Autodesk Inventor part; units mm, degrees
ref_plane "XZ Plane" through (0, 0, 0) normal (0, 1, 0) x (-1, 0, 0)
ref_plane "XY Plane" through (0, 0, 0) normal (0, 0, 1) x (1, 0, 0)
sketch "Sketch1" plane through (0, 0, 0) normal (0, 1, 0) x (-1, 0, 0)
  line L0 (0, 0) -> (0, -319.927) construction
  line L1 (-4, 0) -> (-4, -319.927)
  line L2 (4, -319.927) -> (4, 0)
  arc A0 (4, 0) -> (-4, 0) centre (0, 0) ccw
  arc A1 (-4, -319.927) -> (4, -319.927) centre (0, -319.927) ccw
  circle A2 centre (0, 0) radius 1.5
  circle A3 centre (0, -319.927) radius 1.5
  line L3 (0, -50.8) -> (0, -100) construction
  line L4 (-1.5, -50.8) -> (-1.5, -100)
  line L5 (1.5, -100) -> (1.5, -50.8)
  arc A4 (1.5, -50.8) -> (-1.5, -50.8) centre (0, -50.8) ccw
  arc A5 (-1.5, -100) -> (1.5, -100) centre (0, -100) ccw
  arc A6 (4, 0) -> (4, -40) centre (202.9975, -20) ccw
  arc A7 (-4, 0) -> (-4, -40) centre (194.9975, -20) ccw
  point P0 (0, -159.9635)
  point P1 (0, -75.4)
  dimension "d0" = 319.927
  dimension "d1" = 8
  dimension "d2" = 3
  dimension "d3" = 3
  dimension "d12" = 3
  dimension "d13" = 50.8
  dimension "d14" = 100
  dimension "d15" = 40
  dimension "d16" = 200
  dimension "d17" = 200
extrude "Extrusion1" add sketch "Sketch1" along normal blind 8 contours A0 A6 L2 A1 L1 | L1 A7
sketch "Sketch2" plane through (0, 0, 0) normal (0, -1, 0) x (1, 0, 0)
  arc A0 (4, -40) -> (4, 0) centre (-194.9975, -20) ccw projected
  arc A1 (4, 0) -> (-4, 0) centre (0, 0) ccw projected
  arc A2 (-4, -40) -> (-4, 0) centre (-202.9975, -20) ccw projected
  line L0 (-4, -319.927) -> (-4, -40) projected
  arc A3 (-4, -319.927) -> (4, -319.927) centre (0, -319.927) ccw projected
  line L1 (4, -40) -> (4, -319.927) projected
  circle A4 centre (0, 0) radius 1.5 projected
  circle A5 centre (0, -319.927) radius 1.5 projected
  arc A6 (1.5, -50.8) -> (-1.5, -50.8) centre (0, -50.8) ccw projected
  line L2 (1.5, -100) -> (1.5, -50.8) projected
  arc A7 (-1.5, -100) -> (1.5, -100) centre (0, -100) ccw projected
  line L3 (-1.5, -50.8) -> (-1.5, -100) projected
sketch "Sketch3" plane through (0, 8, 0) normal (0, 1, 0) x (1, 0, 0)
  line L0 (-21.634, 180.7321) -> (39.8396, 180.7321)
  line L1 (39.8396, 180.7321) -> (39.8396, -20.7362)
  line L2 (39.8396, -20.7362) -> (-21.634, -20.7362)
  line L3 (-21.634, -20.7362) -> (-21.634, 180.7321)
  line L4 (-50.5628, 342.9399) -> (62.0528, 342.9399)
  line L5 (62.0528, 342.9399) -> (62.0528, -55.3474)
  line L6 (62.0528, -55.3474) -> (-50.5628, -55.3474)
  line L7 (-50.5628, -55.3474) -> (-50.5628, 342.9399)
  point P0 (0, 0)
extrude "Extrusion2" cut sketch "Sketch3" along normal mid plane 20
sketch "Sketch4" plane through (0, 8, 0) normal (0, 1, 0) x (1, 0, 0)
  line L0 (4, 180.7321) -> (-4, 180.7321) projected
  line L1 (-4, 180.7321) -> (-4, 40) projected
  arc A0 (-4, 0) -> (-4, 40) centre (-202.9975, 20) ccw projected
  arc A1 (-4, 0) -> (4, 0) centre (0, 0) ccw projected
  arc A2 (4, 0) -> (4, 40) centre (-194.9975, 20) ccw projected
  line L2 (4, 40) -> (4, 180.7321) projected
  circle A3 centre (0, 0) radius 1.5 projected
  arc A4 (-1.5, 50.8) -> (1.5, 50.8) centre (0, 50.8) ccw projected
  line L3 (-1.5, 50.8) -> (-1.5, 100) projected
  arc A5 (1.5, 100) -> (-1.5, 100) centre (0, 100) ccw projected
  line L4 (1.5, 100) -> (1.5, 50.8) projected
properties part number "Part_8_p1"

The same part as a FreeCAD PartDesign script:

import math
import FreeCAD as App
import Part
import Sketcher
from FreeCAD import Vector
Q = App.Units.Quantity


def add_polygon(sketch, points):
    """Adds a closed chain of lines whose ends are joined by coincident constraints."""
    first, n = sketch.GeometryCount, len(points)
    for a, b in zip(points, points[1:] + points[:1]):
        sketch.addGeometry(Part.LineSegment(App.Vector(*a, 0), App.Vector(*b, 0)), False)
    for i in range(n):
        sketch.addConstraint(Sketcher.Constraint("Coincident", first + i, 2, first + (i + 1) % n, 1))

doc = App.newDocument("Part")
body = doc.addObject("PartDesign::Body", "Body")

sketch1 = body.newObject("Sketcher::SketchObject", "Sketch")
sketch1.AttachmentSupport = (doc.getObject("XZ_Plane"), [""])
sketch1.MapMode = "FlatFace"
sketch1.addGeometry([
    Part.ArcOfCircle(Part.Circle(Vector(0, 0, 0), Vector(0, 0, 1), 4), math.radians(0), math.radians(180)),
    Part.ArcOfCircle(Part.Circle(Vector(-195, -20, 0), Vector(0, 0, 1), 200), math.radians(-5.74), math.radians(5.74)),
    Part.LineSegment(Vector(4, -40, 0), Vector(4, -319.9, 0)),
    Part.ArcOfCircle(Part.Circle(Vector(0, -319.9, 0), Vector(0, 0, 1), 4), math.radians(180), math.radians(360)),
    Part.LineSegment(Vector(-4, -319.9, 0), Vector(-4, -40, 0)),
    Part.ArcOfCircle(Part.Circle(Vector(-203, -20, 0), Vector(0, 0, 1), 200), math.radians(-5.74), math.radians(5.74)),
    Part.Circle(Vector(0, -319.9, 0), Vector(0, 0, 1), 1.5),
    Part.LineSegment(Vector(1.5, -100, 0), Vector(1.5, -50.8, 0)),
    Part.ArcOfCircle(Part.Circle(Vector(0, -50.8, 0), Vector(0, 0, 1), 1.5), math.radians(0), math.radians(180)),
    Part.LineSegment(Vector(-1.5, -50.8, 0), Vector(-1.5, -100, 0)),
    Part.ArcOfCircle(Part.Circle(Vector(0, -100, 0), Vector(0, 0, 1), 1.5), math.radians(180), math.radians(360)),
    Part.Circle(Vector(0, 0, 0), Vector(0, 0, 1), 1.5),
], False)
sketch1.addConstraint([
    Sketcher.Constraint("Coincident", 0, 1, 1, 2),
    Sketcher.Constraint("Coincident", 1, 1, 2, 1),
    Sketcher.Constraint("Tangent", 2, 2, 3, 2),
    Sketcher.Constraint("Tangent", 3, 1, 4, 1),
    Sketcher.Constraint("Coincident", 4, 2, 5, 1),
    Sketcher.Constraint("Coincident", 5, 2, 0, 2),
    Sketcher.Constraint("Tangent", 7, 2, 8, 1),
    Sketcher.Constraint("Tangent", 8, 2, 9, 1),
    Sketcher.Constraint("Tangent", 9, 2, 10, 1),
    Sketcher.Constraint("Tangent", 10, 2, 7, 1),
    Sketcher.Constraint("Vertical", 2),
    Sketcher.Constraint("Vertical", 4),
    Sketcher.Constraint("Vertical", 7),
    Sketcher.Constraint("Vertical", 9),
    Sketcher.Constraint("Coincident", 0, 3, -1, 1),
    Sketcher.Constraint("Coincident", 11, 3, -1, 1),
    Sketcher.Constraint("Coincident", 6, 3, 3, 3),
    Sketcher.Constraint("Equal", 0, 3),
    Sketcher.Constraint("Equal", 1, 5),
    Sketcher.Constraint("Equal", 6, 8),
    Sketcher.Constraint("Equal", 10, 11),
    Sketcher.Constraint("Symmetric", 1, 1, 4, 2, -2),
    Sketcher.Constraint("PointOnObject", 8, 3, -2),
    Sketcher.Constraint("PointOnObject", 0, 1, -1),
    Sketcher.Constraint("PointOnObject", 5, 2, -1),
    Sketcher.Constraint("Diameter", 6, Q("3 mm")),
    Sketcher.Constraint("Radius", 0, Q("4 mm")),
    Sketcher.Constraint("Radius", 1, Q("200 mm")),
    Sketcher.Constraint("DistanceY", 10, 3, -1, 1, Q("100 mm")),
    Sketcher.Constraint("DistanceY", 1, 1, -1, 1, Q("40 mm")),
    Sketcher.Constraint("DistanceY", 8, 3, -1, 1, Q("50.8 mm")),
    Sketcher.Constraint("DistanceY", 3, 3, -1, 1, Q("319.927 mm")),
])
pad1 = body.newObject("PartDesign::Pad", "Pad")
pad1.Profile = sketch1
pad1.Length = 8
pad1.Reversed = True

sketch2 = body.newObject("Sketcher::SketchObject", "Sketch001")
sketch2.AttachmentSupport = (doc.getObject("XZ_Plane"), [""])
sketch2.MapMode = "FlatFace"
sketch2.AttachmentOffset = App.Placement(Vector(0, 0, -8), App.Rotation())
add_polygon(sketch2, [(62, -343), (-51, -343), (-51, 55), (62, 55)])
add_polygon(sketch2, [(-22, 21), (-22, -181), (40, -181), (40, 21)])
sketch2.addConstraint([
    Sketcher.Constraint("Horizontal", 0),
    Sketcher.Constraint("Vertical", 1),
    Sketcher.Constraint("Horizontal", 2),
    Sketcher.Constraint("Vertical", 3),
    Sketcher.Constraint("Vertical", 4),
    Sketcher.Constraint("Horizontal", 5),
    Sketcher.Constraint("Vertical", 6),
    Sketcher.Constraint("Horizontal", 7),
    Sketcher.Constraint("DistanceY", 0, 2, -1, 1, Q("342.94 mm")),
    Sketcher.Constraint("DistanceX", 0, 2, 0, 1, Q("112.6156 mm")),
    Sketcher.Constraint("DistanceX", 5, 1, 5, 2, Q("61.4736 mm")),
    Sketcher.Constraint("DistanceY", 1, 1, 1, 2, Q("398.2873 mm")),
    Sketcher.Constraint("DistanceY", 4, 2, 4, 1, Q("201.4683 mm")),
    Sketcher.Constraint("DistanceX", 4, 2, -1, 1, Q("21.634 mm")),
    Sketcher.Constraint("DistanceY", 4, 2, -1, 1, Q("180.732 mm")),
    Sketcher.Constraint("DistanceX", 0, 2, -1, 1, Q("50.5628 mm")),
])
pocket1 = body.newObject("PartDesign::Pocket", "Pocket")
pocket1.Profile = sketch2
pocket1.Length = 20
pocket1.Midplane = True

doc.recompute()
